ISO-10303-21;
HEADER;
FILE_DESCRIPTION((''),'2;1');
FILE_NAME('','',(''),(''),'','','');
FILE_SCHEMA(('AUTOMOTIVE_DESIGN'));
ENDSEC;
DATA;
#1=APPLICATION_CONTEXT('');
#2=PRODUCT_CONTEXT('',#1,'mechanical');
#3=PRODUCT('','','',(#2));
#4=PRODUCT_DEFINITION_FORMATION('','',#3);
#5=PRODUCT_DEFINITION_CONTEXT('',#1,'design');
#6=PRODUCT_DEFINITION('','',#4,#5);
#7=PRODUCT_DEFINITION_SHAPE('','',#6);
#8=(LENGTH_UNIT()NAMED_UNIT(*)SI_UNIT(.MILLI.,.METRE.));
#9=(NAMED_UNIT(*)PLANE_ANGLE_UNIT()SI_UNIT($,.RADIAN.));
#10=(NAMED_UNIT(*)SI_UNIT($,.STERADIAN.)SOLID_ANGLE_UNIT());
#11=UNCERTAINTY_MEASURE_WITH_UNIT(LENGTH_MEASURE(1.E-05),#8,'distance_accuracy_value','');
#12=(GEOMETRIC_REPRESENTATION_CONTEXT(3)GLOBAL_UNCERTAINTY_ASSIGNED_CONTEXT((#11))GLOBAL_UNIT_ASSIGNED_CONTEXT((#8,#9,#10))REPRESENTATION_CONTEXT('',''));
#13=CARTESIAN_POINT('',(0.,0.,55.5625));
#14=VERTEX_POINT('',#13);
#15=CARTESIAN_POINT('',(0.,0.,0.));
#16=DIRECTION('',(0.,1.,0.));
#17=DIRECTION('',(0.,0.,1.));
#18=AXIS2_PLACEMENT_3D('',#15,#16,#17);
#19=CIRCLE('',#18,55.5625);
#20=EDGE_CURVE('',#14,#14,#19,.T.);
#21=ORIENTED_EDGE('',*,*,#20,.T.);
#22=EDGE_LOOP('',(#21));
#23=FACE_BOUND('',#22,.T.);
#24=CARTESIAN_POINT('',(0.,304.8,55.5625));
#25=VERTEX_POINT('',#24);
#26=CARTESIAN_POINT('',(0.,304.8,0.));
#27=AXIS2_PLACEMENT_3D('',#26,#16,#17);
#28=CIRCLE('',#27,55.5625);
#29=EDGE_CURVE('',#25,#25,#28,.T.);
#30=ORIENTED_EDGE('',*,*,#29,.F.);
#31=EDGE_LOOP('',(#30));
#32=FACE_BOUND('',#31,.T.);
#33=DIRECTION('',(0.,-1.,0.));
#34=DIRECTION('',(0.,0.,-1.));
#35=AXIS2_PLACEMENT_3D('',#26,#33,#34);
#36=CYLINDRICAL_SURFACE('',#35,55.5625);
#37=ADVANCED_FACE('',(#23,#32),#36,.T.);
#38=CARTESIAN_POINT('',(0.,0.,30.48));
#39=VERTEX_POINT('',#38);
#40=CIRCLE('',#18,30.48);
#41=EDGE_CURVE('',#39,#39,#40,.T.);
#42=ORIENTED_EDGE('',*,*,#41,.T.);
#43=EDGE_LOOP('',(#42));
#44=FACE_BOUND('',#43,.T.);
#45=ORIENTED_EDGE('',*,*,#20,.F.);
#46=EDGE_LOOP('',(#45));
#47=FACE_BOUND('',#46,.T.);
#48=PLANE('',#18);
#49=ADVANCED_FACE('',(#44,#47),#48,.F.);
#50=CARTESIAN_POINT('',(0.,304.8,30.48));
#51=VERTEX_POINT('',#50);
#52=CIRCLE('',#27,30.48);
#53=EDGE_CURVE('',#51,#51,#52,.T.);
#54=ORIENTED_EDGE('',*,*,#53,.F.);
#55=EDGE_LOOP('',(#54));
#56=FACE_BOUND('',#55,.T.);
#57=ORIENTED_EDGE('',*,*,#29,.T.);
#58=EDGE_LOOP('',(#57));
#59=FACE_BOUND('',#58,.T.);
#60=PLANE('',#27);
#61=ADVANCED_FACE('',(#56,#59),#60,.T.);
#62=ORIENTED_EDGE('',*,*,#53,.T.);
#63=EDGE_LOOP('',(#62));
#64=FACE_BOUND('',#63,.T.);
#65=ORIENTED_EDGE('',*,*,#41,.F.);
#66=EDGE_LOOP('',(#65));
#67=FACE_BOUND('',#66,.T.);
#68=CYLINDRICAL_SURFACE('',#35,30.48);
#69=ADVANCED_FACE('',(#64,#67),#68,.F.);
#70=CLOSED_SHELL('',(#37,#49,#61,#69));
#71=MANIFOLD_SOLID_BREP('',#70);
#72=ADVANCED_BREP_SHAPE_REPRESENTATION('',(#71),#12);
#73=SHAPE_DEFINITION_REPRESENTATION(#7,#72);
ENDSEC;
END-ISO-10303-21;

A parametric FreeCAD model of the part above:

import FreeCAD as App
import Part
import Sketcher
Q = App.Units.Quantity

doc = App.newDocument("Part")
params = doc.addObject("Spreadsheet::Sheet", "Params")
for row, (alias, value) in enumerate([
    ("sketch1_diameter", "2.4 in"),
    ("sketch1_diameter2", "4.375 in"),
    ("pad1_length", "12 in"),
], start=1):
    params.set(f"A{row}", alias)
    params.set(f"B{row}", "=" + value)
    params.setAlias(f"B{row}", alias)

body = doc.addObject("PartDesign::Body", "Body")

# Sketch on XZ plane
sketch1 = doc.addObject("Sketcher::SketchObject", "Sketch")
body.addObject(sketch1)
sketch1.AttachmentSupport = (doc.XZ_Plane, [""])
sketch1.MapMode = "FlatFace"
sketch1.addGeometry([
    Part.Circle(App.Vector(0, 0, 0), App.Vector(0, 0, 1), 55.5625),
    Part.Circle(App.Vector(0, 0, 0), App.Vector(0, 0, 1), 30.48),
], False)
sketch1.addConstraint([
    Sketcher.Constraint("Coincident", 0, 3, -1, 1),
    Sketcher.Constraint("Coincident", 1, 3, -1, 1),
    Sketcher.Constraint("Diameter", 1, Q("2.4 in")),
    Sketcher.Constraint("Diameter", 0, Q("4.375 in")),
])
sketch1.setExpression("Constraints[2]", "Params.sketch1_diameter")
sketch1.setExpression("Constraints[3]", "Params.sketch1_diameter2")
pad1 = doc.addObject("PartDesign::Pad", "Pad")
body.addObject(pad1)
pad1.Profile = sketch1
pad1.setExpression("Length", "Params.pad1_length")
pad1.Reversed = True

doc.recompute()
